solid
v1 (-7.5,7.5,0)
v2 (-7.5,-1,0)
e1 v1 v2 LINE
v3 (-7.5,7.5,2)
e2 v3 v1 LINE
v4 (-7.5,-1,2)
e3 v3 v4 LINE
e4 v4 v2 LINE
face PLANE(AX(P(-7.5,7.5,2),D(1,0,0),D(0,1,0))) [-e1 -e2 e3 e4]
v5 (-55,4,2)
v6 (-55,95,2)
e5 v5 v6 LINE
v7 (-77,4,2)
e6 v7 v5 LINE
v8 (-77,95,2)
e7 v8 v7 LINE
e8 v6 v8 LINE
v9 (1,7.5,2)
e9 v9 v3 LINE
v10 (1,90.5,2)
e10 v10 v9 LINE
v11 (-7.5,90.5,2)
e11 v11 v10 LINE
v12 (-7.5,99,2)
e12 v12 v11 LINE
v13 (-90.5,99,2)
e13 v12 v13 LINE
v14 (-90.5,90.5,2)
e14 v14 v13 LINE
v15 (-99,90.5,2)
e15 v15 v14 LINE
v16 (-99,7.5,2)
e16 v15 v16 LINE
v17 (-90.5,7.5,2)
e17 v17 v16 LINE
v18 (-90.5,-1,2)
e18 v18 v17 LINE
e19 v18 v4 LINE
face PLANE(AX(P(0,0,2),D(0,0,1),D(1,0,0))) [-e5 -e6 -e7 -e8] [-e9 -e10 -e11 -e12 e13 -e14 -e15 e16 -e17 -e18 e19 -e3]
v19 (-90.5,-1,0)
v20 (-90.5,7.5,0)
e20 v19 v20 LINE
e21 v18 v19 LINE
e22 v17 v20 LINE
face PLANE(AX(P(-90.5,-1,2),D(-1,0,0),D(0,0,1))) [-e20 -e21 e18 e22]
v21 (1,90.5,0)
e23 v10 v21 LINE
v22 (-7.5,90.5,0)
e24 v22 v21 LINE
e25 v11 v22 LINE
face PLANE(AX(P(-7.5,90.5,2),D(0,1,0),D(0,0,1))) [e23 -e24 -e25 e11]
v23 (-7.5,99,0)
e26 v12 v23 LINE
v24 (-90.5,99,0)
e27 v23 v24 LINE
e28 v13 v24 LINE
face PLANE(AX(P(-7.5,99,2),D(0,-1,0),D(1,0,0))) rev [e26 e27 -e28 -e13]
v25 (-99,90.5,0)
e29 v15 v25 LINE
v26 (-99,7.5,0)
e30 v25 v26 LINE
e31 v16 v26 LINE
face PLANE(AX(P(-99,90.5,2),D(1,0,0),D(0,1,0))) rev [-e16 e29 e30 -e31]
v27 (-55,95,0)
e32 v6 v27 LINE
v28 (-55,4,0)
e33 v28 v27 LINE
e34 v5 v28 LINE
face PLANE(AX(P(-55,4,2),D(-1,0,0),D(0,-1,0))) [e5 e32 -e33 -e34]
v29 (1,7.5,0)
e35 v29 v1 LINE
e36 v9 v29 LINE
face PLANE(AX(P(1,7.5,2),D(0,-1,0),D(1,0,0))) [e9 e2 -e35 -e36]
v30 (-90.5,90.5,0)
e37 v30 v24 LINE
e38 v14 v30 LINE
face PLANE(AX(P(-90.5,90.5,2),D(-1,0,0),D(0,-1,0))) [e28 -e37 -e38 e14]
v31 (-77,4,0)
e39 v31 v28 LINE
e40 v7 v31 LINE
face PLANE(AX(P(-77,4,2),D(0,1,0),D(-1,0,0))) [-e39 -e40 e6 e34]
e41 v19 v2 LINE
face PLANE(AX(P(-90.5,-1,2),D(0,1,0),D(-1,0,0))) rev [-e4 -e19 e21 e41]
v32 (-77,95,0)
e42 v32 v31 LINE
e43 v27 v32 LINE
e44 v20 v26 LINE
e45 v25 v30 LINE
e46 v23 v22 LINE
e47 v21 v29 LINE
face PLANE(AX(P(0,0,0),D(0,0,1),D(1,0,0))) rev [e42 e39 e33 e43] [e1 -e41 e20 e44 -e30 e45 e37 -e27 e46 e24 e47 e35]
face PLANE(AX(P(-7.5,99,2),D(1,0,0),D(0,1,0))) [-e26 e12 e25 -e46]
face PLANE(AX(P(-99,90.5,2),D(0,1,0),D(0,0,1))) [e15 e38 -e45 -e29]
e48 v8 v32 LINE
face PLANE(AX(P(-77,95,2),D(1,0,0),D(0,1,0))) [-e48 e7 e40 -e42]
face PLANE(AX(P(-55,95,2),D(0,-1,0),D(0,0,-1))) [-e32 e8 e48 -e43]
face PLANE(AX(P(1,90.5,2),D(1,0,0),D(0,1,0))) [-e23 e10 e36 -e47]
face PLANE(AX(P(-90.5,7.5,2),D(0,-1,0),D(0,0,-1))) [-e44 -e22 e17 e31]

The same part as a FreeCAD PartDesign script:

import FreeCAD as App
import Part
import Sketcher

V = App.Vector

doc = App.newDocument("Part")
body = doc.addObject("PartDesign::Body", "Body")

# Sketch on XY plane
sketch1 = body.newObject("Sketcher::SketchObject", "Sketch")
sketch1.AttachmentSupport = (doc.getObject("XY_Plane"), [""])
sketch1.MapMode = "FlatFace"
sketch1.addGeometry(Part.LineSegment(V(-99, 90, 0), V(-99, 8, 0)), False)
sketch1.addGeometry(Part.LineSegment(V(-99, 8, 0), V(-90, 8, 0)), False)
sketch1.addGeometry(Part.LineSegment(V(-90, 8, 0), V(-90, -1, 0)), False)
sketch1.addGeometry(Part.LineSegment(V(-90, -1, 0), V(-8, -1, 0)), False)
sketch1.addGeometry(Part.LineSegment(V(-8, -1, 0), V(-8, 8, 0)), False)
sketch1.addGeometry(Part.LineSegment(V(-8, 8, 0), V(1, 8, 0)), False)
sketch1.addGeometry(Part.LineSegment(V(1, 8, 0), V(1, 90, 0)), False)
sketch1.addGeometry(Part.LineSegment(V(1, 90, 0), V(-8, 90, 0)), False)
sketch1.addGeometry(Part.LineSegment(V(-8, 90, 0), V(-8, 99, 0)), False)
sketch1.addGeometry(Part.LineSegment(V(-8, 99, 0), V(-90, 99, 0)), False)
sketch1.addGeometry(Part.LineSegment(V(-90, 99, 0), V(-90, 90, 0)), False)
sketch1.addGeometry(Part.LineSegment(V(-90, 90, 0), V(-99, 90, 0)), False)
sketch1.addConstraint(Sketcher.Constraint("Coincident", 0, 2, 1, 1))
sketch1.addConstraint(Sketcher.Constraint("Coincident", 1, 2, 2, 1))
sketch1.addConstraint(Sketcher.Constraint("Coincident", 2, 2, 3, 1))
sketch1.addConstraint(Sketcher.Constraint("Coincident", 3, 2, 4, 1))
sketch1.addConstraint(Sketcher.Constraint("Coincident", 4, 2, 5, 1))
sketch1.addConstraint(Sketcher.Constraint("Coincident", 5, 2, 6, 1))
sketch1.addConstraint(Sketcher.Constraint("Coincident", 6, 2, 7, 1))
sketch1.addConstraint(Sketcher.Constraint("Coincident", 7, 2, 8, 1))
sketch1.addConstraint(Sketcher.Constraint("Coincident", 8, 2, 9, 1))
sketch1.addConstraint(Sketcher.Constraint("Coincident", 9, 2, 10, 1))
sketch1.addConstraint(Sketcher.Constraint("Coincident", 10, 2, 11, 1))
sketch1.addConstraint(Sketcher.Constraint("Coincident", 11, 2, 0, 1))
sketch1.addConstraint(Sketcher.Constraint("Vertical", 0))
sketch1.addConstraint(Sketcher.Constraint("Horizontal", 1))
sketch1.addConstraint(Sketcher.Constraint("Vertical", 2))
sketch1.addConstraint(Sketcher.Constraint("Horizontal", 3))
sketch1.addConstraint(Sketcher.Constraint("Vertical", 4))
sketch1.addConstraint(Sketcher.Constraint("Horizontal", 5))
sketch1.addConstraint(Sketcher.Constraint("Vertical", 6))
sketch1.addConstraint(Sketcher.Constraint("Horizontal", 7))
sketch1.addConstraint(Sketcher.Constraint("Vertical", 8))
sketch1.addConstraint(Sketcher.Constraint("Horizontal", 9))
sketch1.addConstraint(Sketcher.Constraint("Vertical", 10))
sketch1.addConstraint(Sketcher.Constraint("Horizontal", 11))
sketch1.addConstraint(Sketcher.Constraint("Horizontal", 1, 2, 4, 2))
sketch1.addConstraint(Sketcher.Constraint("Horizontal", 7, 2, 10, 2))
sketch1.addConstraint(Sketcher.Constraint("Vertical", 4, 2, 7, 2))
sketch1.addConstraint(Sketcher.Constraint("Vertical", 2, 2, 9, 2))
sketch1.addConstraint(Sketcher.Constraint("Equal", 1, 5))
sketch1.addConstraint(Sketcher.Constraint("Equal", 9, 0))
sketch1.addConstraint(Sketcher.Constraint("Equal", 11, 2))
sketch1.addConstraint(Sketcher.Constraint("Equal", 4, 8))
sketch1.addConstraint(Sketcher.Constraint("DistanceX", 3, 1, 3, 2, 83.0))
sketch1.addConstraint(Sketcher.Constraint("DistanceX", 1, 1, 1, 2, 8.5))
sketch1.addConstraint(Sketcher.Constraint("DistanceX", 0, 2, -1, 1, 99.0))
sketch1.addConstraint(Sketcher.Constraint("DistanceY", 2, 2, -1, 1, 1.0))
pad1 = body.newObject("PartDesign::Pad", "Pad")
pad1.Profile = sketch1
pad1.Length = 2

# Sketch on XY plane
sketch2 = body.newObject("Sketcher::SketchObject", "Sketch001")
sketch2.AttachmentSupport = (doc.getObject("XY_Plane"), [""])
sketch2.MapMode = "FlatFace"
sketch2.addGeometry(Part.LineSegment(V(-77, 95, 0), V(-77, 4, 0)), False)
sketch2.addGeometry(Part.LineSegment(V(-77, 4, 0), V(-55, 4, 0)), False)
sketch2.addGeometry(Part.LineSegment(V(-55, 4, 0), V(-55, 95, 0)), False)
sketch2.addGeometry(Part.LineSegment(V(-55, 95, 0), V(-77, 95, 0)), False)
sketch2.addConstraint(Sketcher.Constraint("Coincident", 0, 2, 1, 1))
sketch2.addConstraint(Sketcher.Constraint("Coincident", 1, 2, 2, 1))
sketch2.addConstraint(Sketcher.Constraint("Coincident", 2, 2, 3, 1))
sketch2.addConstraint(Sketcher.Constraint("Coincident", 3, 2, 0, 1))
sketch2.addConstraint(Sketcher.Constraint("Vertical", 0))
sketch2.addConstraint(Sketcher.Constraint("Horizontal", 1))
sketch2.addConstraint(Sketcher.Constraint("Vertical", 2))
sketch2.addConstraint(Sketcher.Constraint("Horizontal", 3))
sketch2.addConstraint(Sketcher.Constraint("DistanceX", 1, 1, 1, 2, 22.0))
sketch2.addConstraint(Sketcher.Constraint("DistanceY", 0, 2, 0, 1, 91.0))
sketch2.addConstraint(Sketcher.Constraint("DistanceX", 0, 2, -1, 1, 77.0))
sketch2.addConstraint(Sketcher.Constraint("DistanceY", -1, 1, 0, 2, 4.0))
pocket1 = body.newObject("PartDesign::Pocket", "Pocket")
pocket1.Profile = sketch2
pocket1.Type = "ThroughAll"
pocket1.Reversed = True

doc.recompute()
